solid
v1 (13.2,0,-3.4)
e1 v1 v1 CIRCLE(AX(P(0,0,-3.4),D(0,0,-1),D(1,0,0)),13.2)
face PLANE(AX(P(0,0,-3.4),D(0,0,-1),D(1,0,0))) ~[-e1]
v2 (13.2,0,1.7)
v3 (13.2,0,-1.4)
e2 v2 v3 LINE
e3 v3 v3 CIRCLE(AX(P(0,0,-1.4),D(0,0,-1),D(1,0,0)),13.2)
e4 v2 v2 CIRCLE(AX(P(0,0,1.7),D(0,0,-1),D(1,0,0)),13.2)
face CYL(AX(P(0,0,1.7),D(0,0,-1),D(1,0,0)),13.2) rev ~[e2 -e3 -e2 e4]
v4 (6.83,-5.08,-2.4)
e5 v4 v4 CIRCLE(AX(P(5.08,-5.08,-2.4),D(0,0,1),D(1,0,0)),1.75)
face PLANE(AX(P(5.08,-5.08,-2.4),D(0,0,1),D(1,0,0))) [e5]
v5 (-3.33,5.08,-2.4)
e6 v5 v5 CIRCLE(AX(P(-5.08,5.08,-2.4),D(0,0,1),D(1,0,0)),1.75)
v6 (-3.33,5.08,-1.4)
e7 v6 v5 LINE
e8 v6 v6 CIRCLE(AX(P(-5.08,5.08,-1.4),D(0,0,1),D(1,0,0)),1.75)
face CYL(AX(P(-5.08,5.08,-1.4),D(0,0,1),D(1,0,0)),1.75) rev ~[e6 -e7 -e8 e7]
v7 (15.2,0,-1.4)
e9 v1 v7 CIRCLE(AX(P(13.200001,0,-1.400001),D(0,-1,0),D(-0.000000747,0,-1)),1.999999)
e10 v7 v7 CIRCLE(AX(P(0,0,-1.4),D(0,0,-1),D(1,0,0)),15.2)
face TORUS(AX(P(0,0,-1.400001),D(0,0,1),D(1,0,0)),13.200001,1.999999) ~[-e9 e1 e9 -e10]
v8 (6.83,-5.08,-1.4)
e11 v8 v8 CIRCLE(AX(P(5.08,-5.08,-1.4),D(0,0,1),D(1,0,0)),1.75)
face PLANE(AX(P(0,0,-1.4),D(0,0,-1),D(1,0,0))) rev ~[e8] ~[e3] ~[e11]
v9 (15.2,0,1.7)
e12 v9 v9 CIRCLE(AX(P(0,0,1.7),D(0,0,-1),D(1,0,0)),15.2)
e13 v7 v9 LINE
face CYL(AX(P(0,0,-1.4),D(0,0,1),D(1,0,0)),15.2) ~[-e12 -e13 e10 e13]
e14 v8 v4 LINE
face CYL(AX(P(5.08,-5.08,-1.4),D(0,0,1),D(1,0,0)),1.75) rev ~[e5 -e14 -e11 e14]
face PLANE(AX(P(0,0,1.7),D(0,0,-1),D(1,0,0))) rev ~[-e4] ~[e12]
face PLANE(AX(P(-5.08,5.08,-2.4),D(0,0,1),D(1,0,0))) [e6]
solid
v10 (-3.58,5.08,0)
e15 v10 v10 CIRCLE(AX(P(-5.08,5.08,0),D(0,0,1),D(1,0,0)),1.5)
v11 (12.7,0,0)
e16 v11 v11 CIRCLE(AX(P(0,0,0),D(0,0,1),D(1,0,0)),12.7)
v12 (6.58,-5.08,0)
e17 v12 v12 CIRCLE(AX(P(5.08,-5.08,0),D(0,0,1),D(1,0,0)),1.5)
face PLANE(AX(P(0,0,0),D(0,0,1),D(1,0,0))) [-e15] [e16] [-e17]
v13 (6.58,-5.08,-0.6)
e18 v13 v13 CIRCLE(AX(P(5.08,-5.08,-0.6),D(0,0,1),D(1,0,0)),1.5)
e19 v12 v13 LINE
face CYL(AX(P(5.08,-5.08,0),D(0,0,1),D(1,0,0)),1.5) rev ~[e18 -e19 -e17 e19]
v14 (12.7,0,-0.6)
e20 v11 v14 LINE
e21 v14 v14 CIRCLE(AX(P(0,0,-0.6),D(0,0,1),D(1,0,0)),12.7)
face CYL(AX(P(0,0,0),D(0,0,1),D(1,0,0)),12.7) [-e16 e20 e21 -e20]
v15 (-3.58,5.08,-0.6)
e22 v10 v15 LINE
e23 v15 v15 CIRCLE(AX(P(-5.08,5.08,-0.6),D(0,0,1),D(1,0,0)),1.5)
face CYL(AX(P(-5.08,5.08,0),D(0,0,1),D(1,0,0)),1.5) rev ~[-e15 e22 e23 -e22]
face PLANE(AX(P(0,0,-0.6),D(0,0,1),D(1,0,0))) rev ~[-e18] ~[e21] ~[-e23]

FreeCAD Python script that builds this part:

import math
import FreeCAD as App
import Part
import Sketcher
from FreeCAD import Vector
Q = App.Units.Quantity

doc = App.newDocument("Part")
body = doc.addObject("PartDesign::Body", "Body")

sketch1 = body.newObject("Sketcher::SketchObject", "Sketch")
sketch1.AttachmentSupport = (doc.getObject("XY_Plane"), [""])
sketch1.MapMode = "FlatFace"
sketch1.addGeometry(Part.Circle(Vector(0, 0, 0), Vector(0, 0, 1), 12.7), False)
sketch1.addGeometry(Part.Circle(Vector(5.1, -5.1, 0), Vector(0, 0, 1), 1.5), False)
sketch1.addGeometry(Part.Circle(Vector(-5.1, 5.1, 0), Vector(0, 0, 1), 1.5), False)
sketch1.addConstraint(Sketcher.Constraint("Coincident", 0, 3, -1, 1))
sketch1.addConstraint(Sketcher.Constraint("Equal", 1, 2))
sketch1.addConstraint(Sketcher.Constraint("Symmetric", 1, 3, 2, 3, -1, 1))
sketch1.addConstraint(Sketcher.Constraint("Diameter", 1, Q("3 mm")))
sketch1.addConstraint(Sketcher.Constraint("Diameter", 0, Q("25.4 mm")))
sketch1.addConstraint(Sketcher.Constraint("DistanceX", -1, 1, 1, 3, Q("5.08 mm")))
sketch1.addConstraint(Sketcher.Constraint("DistanceY", 1, 3, -1, 1, Q("5.08 mm")))
pad1 = body.newObject("PartDesign::Pad", "Pad")
pad1.Profile = sketch1
pad1.Length = 0.6
pad1.Reversed = True
body2 = doc.addObject("PartDesign::Body", "Body001")

sketch2 = body2.newObject("Sketcher::SketchObject", "Sketch001")
sketch2.AttachmentSupport = (doc.getObject("XZ_Plane001"), [""])
sketch2.MapMode = "FlatFace"
sketch2.addGeometry(Part.LineSegment(Vector(13.2, -1.4, 0), Vector(0, -1.4, 0)), False)
sketch2.addGeometry(Part.LineSegment(Vector(0, -1.4, 0), Vector(0, -3.4, 0)), False)
sketch2.addGeometry(Part.LineSegment(Vector(0, -3.4, 0), Vector(13.2, -3.4, 0)), False)
sketch2.addGeometry(Part.ArcOfCircle(Part.Circle(Vector(13.2, -1.4, 0), Vector(0, 0, 1), 2), math.radians(-90), math.radians(0)), False)
sketch2.addGeometry(Part.LineSegment(Vector(15.2, -1.4, 0), Vector(15.2, 1.7, 0)), False)
sketch2.addGeometry(Part.LineSegment(Vector(15.2, 1.7, 0), Vector(13.2, 1.7, 0)), False)
sketch2.addGeometry(Part.LineSegment(Vector(13.2, 1.7, 0), Vector(13.2, -1.4, 0)), False)
sketch2.addConstraint(Sketcher.Constraint("Coincident", 0, 2, 1, 1))
sketch2.addConstraint(Sketcher.Constraint("Coincident", 1, 2, 2, 1))
sketch2.addConstraint(Sketcher.Constraint("Tangent", 2, 2, 3, 1))
sketch2.addConstraint(Sketcher.Constraint("Tangent", 3, 2, 4, 1))
sketch2.addConstraint(Sketcher.Constraint("Coincident", 4, 2, 5, 1))
sketch2.addConstraint(Sketcher.Constraint("Coincident", 5, 2, 6, 1))
sketch2.addConstraint(Sketcher.Constraint("Coincident", 6, 2, 0, 1))
sketch2.addConstraint(Sketcher.Constraint("Horizontal", 0))
sketch2.addConstraint(Sketcher.Constraint("Vertical", 1))
sketch2.addConstraint(Sketcher.Constraint("Horizontal", 2))
sketch2.addConstraint(Sketcher.Constraint("Vertical", 4))
sketch2.addConstraint(Sketcher.Constraint("Horizontal", 5))
sketch2.addConstraint(Sketcher.Constraint("Vertical", 6))
sketch2.addConstraint(Sketcher.Constraint("Coincident", 6, 2, 3, 3))
sketch2.addConstraint(Sketcher.Constraint("PointOnObject", 0, 2, -2))
sketch2.addConstraint(Sketcher.Constraint("Radius", 3, Q("1.999999 mm")))
sketch2.addConstraint(Sketcher.Constraint("DistanceX", 0, 2, 0, 1, Q("13.2 mm")))
sketch2.addConstraint(Sketcher.Constraint("DistanceY", 4, 1, 4, 2, Q("3.1 mm")))
sketch2.addConstraint(Sketcher.Constraint("DistanceY", 3, 3, -1, 1, Q("1.400001 mm")))
revolution = body2.newObject("PartDesign::Revolution", "Revolution")
revolution.Profile = sketch2
revolution.ReferenceAxis = (sketch2, ["V_Axis"])
revolution.Angle = 360

sketch3 = body2.newObject("Sketcher::SketchObject", "Sketch002")
sketch3.AttachmentSupport = (doc.getObject("XY_Plane001"), [""])
sketch3.MapMode = "FlatFace"
sketch3.AttachmentOffset = App.Placement(Vector(0, 0, -1.4), App.Rotation())
sketch3.addGeometry(Part.Circle(Vector(-5.1, 5.1, 0), Vector(0, 0, 1), 1.8), False)
sketch3.addGeometry(Part.Circle(Vector(5.1, -5.1, 0), Vector(0, 0, 1), 1.8), False)
sketch3.addConstraint(Sketcher.Constraint("Equal", 0, 1))
sketch3.addConstraint(Sketcher.Constraint("Symmetric", 0, 3, 1, 3, -1, 1))
sketch3.addConstraint(Sketcher.Constraint("Diameter", 0, Q("3.5 mm")))
sketch3.addConstraint(Sketcher.Constraint("DistanceX", 0, 3, -1, 1, Q("5.08 mm")))
sketch3.addConstraint(Sketcher.Constraint("DistanceY", -1, 1, 0, 3, Q("5.08 mm")))
pocket1 = body2.newObject("PartDesign::Pocket", "Pocket")
pocket1.Profile = sketch3
pocket1.Length = 1

doc.recompute()
